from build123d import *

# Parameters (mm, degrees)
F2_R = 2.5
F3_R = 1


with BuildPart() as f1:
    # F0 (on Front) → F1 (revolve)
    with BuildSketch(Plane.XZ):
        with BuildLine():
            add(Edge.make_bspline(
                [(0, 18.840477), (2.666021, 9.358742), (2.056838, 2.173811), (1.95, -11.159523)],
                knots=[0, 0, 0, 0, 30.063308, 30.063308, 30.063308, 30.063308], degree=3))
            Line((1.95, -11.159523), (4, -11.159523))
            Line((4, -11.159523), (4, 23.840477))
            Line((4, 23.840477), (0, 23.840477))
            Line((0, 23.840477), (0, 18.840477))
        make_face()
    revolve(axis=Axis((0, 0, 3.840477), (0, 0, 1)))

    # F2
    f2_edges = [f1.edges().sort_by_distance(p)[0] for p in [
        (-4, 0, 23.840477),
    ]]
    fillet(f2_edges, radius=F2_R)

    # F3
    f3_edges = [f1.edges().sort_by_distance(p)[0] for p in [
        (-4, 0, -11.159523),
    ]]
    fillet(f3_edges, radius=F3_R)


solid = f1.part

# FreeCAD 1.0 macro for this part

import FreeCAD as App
import Part
import Sketcher


def edges_at(feature, points):
    """Names of the edges that pass closest to the given points."""
    edges = feature.Shape.Edges
    near = lambda p: min(range(len(edges)), key=lambda i: edges[i].distToShape(Part.Vertex(*p))[0])
    return sorted({f"Edge{near(p) + 1}" for p in points})

doc = App.newDocument("Part")
body = doc.addObject("PartDesign::Body", "Body")

sketch1 = body.newObject("Sketcher::SketchObject", "Sketch")
sketch1.AttachmentSupport = (doc.getObject("XZ_Plane"), [""])
sketch1.MapMode = "FlatFace"
sketch1.addGeometry([
    Part.BSplineCurve([App.Vector(0, 18.840477, 0), App.Vector(2.666021, 9.358742, 0), App.Vector(2.056838, 2.173811, 0), App.Vector(1.95, -11.159523, 0)], [4, 4], [0, 30.063308], False, 3, [1, 1, 1, 1], False),
    Part.LineSegment(App.Vector(1.95, -11.159523, 0), App.Vector(4, -11.159523, 0)),
    Part.LineSegment(App.Vector(4, -11.159523, 0), App.Vector(4, 23.840477, 0)),
    Part.LineSegment(App.Vector(4, 23.840477, 0), App.Vector(0, 23.840477, 0)),
    Part.LineSegment(App.Vector(0, 23.840477, 0), App.Vector(0, 18.840477, 0)),
], False)
sketch1.addConstraint([
    Sketcher.Constraint("Block", 0),
    Sketcher.Constraint("Coincident", 0, 2, 1, 1),
    Sketcher.Constraint("Coincident", 1, 2, 2, 1),
    Sketcher.Constraint("Coincident", 2, 2, 3, 1),
    Sketcher.Constraint("Coincident", 3, 2, 4, 1),
    Sketcher.Constraint("Coincident", 4, 2, 0, 1),
    Sketcher.Constraint("Horizontal", 1),
    Sketcher.Constraint("Vertical", 2),
    Sketcher.Constraint("Horizontal", 3),
    Sketcher.Constraint("Vertical", 4),
    Sketcher.Constraint("DistanceX", 3, 2, 3, 1, 4.0),
    Sketcher.Constraint("DistanceY", 2, 1, 2, 2, 35.0),
])
revolution = body.newObject("PartDesign::Revolution", "Revolution")
revolution.Profile = sketch1
revolution.ReferenceAxis = (sketch1, ["V_Axis"])
revolution.Angle = 360
doc.recompute()

fillet = body.newObject("PartDesign::Fillet", "Fillet")
fillet.Base = (revolution, edges_at(revolution, [(-4, 0, 23.84)]))
fillet.Radius = 2.5
doc.recompute()

fillet2 = body.newObject("PartDesign::Fillet", "Fillet001")
fillet2.Base = (fillet, edges_at(fillet, [(-4, 0, -11.16)]))
fillet2.Radius = 1

doc.recompute()
